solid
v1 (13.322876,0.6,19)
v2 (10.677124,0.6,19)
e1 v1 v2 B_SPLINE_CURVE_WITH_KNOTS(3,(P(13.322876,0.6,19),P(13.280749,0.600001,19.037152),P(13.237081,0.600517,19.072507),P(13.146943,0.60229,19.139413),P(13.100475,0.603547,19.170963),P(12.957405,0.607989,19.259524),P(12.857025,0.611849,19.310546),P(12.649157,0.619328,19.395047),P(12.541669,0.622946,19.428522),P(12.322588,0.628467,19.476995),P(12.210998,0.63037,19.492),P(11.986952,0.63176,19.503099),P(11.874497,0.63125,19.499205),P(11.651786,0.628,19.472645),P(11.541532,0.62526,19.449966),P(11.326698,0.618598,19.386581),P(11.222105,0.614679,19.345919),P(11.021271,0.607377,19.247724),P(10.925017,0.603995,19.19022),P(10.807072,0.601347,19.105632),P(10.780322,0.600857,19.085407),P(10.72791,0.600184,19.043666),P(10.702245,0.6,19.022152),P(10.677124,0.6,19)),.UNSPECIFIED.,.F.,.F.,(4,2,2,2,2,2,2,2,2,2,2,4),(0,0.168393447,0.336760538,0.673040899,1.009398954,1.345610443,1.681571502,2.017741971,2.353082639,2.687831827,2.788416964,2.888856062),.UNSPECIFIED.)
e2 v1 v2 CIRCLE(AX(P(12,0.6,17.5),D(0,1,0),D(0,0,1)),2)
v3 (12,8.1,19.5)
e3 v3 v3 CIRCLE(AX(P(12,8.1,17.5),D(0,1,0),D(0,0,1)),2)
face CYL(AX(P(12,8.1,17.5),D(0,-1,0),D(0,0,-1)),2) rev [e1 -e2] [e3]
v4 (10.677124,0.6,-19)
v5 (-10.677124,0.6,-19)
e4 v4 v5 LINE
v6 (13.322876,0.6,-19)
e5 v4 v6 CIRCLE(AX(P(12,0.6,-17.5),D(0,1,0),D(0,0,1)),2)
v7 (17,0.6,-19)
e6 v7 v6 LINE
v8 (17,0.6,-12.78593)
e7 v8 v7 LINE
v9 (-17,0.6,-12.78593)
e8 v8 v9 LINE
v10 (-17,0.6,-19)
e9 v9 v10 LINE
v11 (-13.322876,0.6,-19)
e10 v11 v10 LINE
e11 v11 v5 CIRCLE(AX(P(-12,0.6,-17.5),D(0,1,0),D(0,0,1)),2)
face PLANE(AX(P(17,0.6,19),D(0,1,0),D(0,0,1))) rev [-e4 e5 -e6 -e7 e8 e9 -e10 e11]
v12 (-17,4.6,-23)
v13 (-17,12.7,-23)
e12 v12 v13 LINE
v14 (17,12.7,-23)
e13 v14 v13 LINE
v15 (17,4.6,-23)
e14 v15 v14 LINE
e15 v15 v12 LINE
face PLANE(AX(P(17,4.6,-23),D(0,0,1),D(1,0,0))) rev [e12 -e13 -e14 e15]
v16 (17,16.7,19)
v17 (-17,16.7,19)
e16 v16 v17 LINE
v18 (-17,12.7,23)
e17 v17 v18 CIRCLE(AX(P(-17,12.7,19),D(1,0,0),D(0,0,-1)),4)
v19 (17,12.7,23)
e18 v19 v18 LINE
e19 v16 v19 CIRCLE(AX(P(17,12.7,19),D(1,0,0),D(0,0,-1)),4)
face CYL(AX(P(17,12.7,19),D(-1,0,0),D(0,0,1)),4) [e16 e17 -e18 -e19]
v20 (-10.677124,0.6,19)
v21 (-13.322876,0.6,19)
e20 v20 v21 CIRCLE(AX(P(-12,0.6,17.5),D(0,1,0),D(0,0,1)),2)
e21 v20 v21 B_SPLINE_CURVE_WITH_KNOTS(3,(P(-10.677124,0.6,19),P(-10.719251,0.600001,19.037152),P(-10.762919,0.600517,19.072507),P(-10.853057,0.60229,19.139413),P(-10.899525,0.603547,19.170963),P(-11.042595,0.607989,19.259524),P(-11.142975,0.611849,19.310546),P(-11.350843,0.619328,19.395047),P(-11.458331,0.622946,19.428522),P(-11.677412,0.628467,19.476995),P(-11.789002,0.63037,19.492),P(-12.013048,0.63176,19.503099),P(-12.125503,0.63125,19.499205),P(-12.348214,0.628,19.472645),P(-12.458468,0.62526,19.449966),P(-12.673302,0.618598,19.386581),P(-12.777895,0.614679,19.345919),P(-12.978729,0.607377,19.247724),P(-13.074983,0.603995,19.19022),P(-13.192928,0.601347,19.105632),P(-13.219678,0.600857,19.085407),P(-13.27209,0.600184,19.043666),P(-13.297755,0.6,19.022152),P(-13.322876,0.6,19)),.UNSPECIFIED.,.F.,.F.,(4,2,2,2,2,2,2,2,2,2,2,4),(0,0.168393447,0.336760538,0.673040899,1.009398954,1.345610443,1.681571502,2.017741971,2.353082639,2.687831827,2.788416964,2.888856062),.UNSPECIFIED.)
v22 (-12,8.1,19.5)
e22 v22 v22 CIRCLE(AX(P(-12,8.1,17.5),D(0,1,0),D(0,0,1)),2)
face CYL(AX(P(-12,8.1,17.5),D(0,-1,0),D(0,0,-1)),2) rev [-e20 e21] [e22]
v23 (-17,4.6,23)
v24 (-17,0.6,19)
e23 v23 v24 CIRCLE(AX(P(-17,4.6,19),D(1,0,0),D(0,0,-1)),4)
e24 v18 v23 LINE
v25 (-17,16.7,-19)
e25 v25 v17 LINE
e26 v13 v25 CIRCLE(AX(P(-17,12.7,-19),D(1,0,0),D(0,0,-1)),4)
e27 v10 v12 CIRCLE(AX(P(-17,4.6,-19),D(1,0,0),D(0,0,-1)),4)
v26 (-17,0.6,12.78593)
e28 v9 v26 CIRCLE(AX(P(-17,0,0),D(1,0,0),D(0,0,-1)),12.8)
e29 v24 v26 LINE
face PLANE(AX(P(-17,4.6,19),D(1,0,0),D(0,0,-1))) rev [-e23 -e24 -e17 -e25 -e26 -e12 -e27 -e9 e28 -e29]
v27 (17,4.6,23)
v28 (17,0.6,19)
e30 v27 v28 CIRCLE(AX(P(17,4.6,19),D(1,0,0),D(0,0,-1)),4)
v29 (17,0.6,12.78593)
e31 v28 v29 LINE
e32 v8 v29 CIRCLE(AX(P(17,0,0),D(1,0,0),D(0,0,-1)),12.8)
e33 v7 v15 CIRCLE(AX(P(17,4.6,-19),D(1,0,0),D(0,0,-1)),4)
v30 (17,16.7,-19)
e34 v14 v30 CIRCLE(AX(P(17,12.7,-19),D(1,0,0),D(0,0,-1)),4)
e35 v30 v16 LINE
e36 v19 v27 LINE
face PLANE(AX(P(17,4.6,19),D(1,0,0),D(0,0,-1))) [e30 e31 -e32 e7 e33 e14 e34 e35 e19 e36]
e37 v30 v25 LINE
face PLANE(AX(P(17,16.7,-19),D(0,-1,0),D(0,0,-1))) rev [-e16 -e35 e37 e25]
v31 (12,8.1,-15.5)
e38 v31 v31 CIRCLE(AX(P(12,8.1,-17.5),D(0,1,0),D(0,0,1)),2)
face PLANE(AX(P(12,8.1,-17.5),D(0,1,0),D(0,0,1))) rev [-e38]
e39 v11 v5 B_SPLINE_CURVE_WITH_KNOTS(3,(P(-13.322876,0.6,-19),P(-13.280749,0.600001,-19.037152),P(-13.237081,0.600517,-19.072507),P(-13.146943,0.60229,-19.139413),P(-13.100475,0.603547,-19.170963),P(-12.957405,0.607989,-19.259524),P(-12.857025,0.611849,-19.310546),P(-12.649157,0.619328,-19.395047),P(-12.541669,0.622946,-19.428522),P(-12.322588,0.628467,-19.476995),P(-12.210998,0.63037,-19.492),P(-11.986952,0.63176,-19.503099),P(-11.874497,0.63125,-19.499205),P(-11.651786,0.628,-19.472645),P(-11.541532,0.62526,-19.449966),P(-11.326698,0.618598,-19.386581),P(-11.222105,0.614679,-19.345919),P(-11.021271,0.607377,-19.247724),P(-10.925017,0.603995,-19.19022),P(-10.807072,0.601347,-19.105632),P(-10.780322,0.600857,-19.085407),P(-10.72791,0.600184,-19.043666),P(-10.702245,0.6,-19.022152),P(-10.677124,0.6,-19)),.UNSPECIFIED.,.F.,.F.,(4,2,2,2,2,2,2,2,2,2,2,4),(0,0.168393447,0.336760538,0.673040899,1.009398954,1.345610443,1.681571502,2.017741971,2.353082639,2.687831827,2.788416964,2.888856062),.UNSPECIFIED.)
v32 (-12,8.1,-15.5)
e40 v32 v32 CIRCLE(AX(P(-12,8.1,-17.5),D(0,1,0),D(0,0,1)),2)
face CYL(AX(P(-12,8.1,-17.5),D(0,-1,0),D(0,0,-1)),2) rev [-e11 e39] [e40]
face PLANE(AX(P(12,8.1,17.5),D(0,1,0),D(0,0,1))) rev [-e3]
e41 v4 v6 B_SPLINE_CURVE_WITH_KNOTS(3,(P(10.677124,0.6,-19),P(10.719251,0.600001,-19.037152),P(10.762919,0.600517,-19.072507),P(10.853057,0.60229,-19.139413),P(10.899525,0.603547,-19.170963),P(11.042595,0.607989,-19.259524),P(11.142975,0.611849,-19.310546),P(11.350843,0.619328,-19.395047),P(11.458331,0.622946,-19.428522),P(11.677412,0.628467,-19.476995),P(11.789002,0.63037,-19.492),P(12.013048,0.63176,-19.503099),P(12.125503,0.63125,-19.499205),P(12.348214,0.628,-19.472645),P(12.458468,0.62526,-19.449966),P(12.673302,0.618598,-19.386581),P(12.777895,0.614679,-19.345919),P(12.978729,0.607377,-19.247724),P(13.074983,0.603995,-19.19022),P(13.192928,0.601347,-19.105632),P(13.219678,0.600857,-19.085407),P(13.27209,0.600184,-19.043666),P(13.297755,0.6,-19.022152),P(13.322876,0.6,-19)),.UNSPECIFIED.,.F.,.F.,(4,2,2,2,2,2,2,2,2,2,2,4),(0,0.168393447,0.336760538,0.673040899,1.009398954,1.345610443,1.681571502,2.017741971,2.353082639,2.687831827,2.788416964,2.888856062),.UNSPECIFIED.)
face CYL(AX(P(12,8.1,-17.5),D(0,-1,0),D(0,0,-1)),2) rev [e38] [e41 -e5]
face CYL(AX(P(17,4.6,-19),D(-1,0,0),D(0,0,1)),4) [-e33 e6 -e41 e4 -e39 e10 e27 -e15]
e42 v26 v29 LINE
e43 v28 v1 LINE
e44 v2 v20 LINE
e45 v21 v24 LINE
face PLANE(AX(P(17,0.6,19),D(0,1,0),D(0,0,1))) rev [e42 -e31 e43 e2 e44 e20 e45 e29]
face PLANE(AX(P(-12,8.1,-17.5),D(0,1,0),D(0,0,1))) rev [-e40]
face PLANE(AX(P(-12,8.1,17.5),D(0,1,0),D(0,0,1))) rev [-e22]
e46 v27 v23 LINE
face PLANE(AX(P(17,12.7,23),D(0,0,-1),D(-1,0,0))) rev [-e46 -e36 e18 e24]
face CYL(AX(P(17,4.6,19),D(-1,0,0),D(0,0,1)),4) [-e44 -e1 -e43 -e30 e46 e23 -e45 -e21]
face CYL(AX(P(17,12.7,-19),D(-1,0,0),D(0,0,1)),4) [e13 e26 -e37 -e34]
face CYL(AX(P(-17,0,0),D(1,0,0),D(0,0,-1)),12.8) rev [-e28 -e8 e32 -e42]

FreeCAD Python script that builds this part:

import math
import FreeCAD as App
import Part
import Sketcher
from FreeCAD import Vector
Q = App.Units.Quantity

doc = App.newDocument("Part")
body = doc.addObject("PartDesign::Body", "Body")

# Sketch on YZ plane
sketch1 = doc.addObject("Sketcher::SketchObject", "Sketch")
body.addObject(sketch1)
sketch1.AttachmentSupport = (doc.YZ_Plane, [""])
sketch1.MapMode = "FlatFace"
sketch1.addGeometry([
    Part.LineSegment(Vector(0.6, 19, 0), Vector(0.6, -19, 0)),  # 0
    Part.ArcOfCircle(Part.Circle(Vector(4.6, -19, 0), Vector(0, 0, 1), 4), math.radians(180), math.radians(270)),  # 1
    Part.LineSegment(Vector(4.6, -23, 0), Vector(12.7, -23, 0)),  # 2
    Part.ArcOfCircle(Part.Circle(Vector(12.7, -19, 0), Vector(0, 0, 1), 4), math.radians(-90), math.radians(0)),  # 3
    Part.LineSegment(Vector(16.7, -19, 0), Vector(16.7, 19, 0)),  # 4
    Part.ArcOfCircle(Part.Circle(Vector(12.7, 19, 0), Vector(0, 0, 1), 4), math.radians(0), math.radians(90)),  # 5
    Part.LineSegment(Vector(12.7, 23, 0), Vector(4.6, 23, 0)),  # 6
    Part.ArcOfCircle(Part.Circle(Vector(4.6, 19, 0), Vector(0, 0, 1), 4), math.radians(90), math.radians(180)),  # 7
], False)
sketch1.addConstraint([
    Sketcher.Constraint("Tangent", 0, 2, 1, 1),
    Sketcher.Constraint("Tangent", 1, 2, 2, 1),
    Sketcher.Constraint("Tangent", 2, 2, 3, 1),
    Sketcher.Constraint("Tangent", 3, 2, 4, 1),
    Sketcher.Constraint("Tangent", 4, 2, 5, 1),
    Sketcher.Constraint("Tangent", 5, 2, 6, 1),
    Sketcher.Constraint("Tangent", 6, 2, 7, 1),
    Sketcher.Constraint("Tangent", 7, 2, 0, 1),
    Sketcher.Constraint("Vertical", 0),
    Sketcher.Constraint("Horizontal", 2),
    Sketcher.Constraint("Vertical", 4),
    Sketcher.Constraint("Horizontal", 6),
    Sketcher.Constraint("Equal", 1, 3),
    Sketcher.Constraint("Equal", 3, 5),
    Sketcher.Constraint("Equal", 5, 7),
    Sketcher.Constraint("Radius", 1, Q("4 mm")),
    Sketcher.Constraint("DistanceY", 0, 2, 0, 1, Q("38 mm")),
    Sketcher.Constraint("DistanceX", 2, 1, 2, 2, Q("8.1 mm")),
    Sketcher.Constraint("DistanceY", 1, 3, -1, 1, Q("19 mm")),
    Sketcher.Constraint("DistanceX", -1, 1, 1, 3, Q("4.6 mm")),
])
pad1 = doc.addObject("PartDesign::Pad", "Pad")
body.addObject(pad1)
pad1.Profile = sketch1
pad1.Length = 34
pad1.Midplane = True

# Sketch on YZ plane
sketch2 = doc.addObject("Sketcher::SketchObject", "Sketch001")
body.addObject(sketch2)
sketch2.AttachmentSupport = (doc.YZ_Plane, [""])
sketch2.MapMode = "FlatFace"
sketch2.addGeometry(Part.Circle(Vector(0, 0, 0), Vector(0, 0, 1), 13), False)
sketch2.addConstraint([
    Sketcher.Constraint("Coincident", 0, 3, -1, 1),
    Sketcher.Constraint("Diameter", 0, Q("25.6 mm")),
])
pocket1 = doc.addObject("PartDesign::Pocket", "Pocket")
body.addObject(pocket1)
pocket1.Profile = sketch2
pocket1.Type = "ThroughAll"
pocket1.Midplane = True

# Sketch on XZ plane
sketch3 = doc.addObject("Sketcher::SketchObject", "Sketch002")
body.addObject(sketch3)
sketch3.AttachmentSupport = (doc.XZ_Plane, [""])
sketch3.MapMode = "FlatFace"
sketch3.AttachmentOffset = App.Placement(Vector(0, 0, -0.6), App.Rotation())
sketch3.addGeometry([
    Part.Circle(Vector(12, 17.5, 0), Vector(0, 0, 1), 2),
    Part.Circle(Vector(12, -17.5, 0), Vector(0, 0, 1), 2),
    Part.Circle(Vector(-12, 17.5, 0), Vector(0, 0, 1), 2),
    Part.Circle(Vector(-12, -17.5, 0), Vector(0, 0, 1), 2),
], False)
sketch3.addConstraint([
    Sketcher.Constraint("Equal", 0, 1),
    Sketcher.Constraint("Equal", 1, 2),
    Sketcher.Constraint("Equal", 2, 3),
    Sketcher.Constraint("Symmetric", 1, 3, 2, 3, -1, 1),
    Sketcher.Constraint("Symmetric", 0, 3, 3, 3, -1, 1),
    Sketcher.Constraint("Symmetric", 0, 3, 2, 3, -2),
    Sketcher.Constraint("Diameter", 0, Q("4 mm")),
    Sketcher.Constraint("DistanceX", -1, 1, 0, 3, Q("12 mm")),
    Sketcher.Constraint("DistanceY", 1, 3, 0, 3, Q("35 mm")),
])
pocket2 = doc.addObject("PartDesign::Pocket", "Pocket001")
body.addObject(pocket2)
pocket2.Profile = sketch3
pocket2.Length = 7.5

doc.recompute()
